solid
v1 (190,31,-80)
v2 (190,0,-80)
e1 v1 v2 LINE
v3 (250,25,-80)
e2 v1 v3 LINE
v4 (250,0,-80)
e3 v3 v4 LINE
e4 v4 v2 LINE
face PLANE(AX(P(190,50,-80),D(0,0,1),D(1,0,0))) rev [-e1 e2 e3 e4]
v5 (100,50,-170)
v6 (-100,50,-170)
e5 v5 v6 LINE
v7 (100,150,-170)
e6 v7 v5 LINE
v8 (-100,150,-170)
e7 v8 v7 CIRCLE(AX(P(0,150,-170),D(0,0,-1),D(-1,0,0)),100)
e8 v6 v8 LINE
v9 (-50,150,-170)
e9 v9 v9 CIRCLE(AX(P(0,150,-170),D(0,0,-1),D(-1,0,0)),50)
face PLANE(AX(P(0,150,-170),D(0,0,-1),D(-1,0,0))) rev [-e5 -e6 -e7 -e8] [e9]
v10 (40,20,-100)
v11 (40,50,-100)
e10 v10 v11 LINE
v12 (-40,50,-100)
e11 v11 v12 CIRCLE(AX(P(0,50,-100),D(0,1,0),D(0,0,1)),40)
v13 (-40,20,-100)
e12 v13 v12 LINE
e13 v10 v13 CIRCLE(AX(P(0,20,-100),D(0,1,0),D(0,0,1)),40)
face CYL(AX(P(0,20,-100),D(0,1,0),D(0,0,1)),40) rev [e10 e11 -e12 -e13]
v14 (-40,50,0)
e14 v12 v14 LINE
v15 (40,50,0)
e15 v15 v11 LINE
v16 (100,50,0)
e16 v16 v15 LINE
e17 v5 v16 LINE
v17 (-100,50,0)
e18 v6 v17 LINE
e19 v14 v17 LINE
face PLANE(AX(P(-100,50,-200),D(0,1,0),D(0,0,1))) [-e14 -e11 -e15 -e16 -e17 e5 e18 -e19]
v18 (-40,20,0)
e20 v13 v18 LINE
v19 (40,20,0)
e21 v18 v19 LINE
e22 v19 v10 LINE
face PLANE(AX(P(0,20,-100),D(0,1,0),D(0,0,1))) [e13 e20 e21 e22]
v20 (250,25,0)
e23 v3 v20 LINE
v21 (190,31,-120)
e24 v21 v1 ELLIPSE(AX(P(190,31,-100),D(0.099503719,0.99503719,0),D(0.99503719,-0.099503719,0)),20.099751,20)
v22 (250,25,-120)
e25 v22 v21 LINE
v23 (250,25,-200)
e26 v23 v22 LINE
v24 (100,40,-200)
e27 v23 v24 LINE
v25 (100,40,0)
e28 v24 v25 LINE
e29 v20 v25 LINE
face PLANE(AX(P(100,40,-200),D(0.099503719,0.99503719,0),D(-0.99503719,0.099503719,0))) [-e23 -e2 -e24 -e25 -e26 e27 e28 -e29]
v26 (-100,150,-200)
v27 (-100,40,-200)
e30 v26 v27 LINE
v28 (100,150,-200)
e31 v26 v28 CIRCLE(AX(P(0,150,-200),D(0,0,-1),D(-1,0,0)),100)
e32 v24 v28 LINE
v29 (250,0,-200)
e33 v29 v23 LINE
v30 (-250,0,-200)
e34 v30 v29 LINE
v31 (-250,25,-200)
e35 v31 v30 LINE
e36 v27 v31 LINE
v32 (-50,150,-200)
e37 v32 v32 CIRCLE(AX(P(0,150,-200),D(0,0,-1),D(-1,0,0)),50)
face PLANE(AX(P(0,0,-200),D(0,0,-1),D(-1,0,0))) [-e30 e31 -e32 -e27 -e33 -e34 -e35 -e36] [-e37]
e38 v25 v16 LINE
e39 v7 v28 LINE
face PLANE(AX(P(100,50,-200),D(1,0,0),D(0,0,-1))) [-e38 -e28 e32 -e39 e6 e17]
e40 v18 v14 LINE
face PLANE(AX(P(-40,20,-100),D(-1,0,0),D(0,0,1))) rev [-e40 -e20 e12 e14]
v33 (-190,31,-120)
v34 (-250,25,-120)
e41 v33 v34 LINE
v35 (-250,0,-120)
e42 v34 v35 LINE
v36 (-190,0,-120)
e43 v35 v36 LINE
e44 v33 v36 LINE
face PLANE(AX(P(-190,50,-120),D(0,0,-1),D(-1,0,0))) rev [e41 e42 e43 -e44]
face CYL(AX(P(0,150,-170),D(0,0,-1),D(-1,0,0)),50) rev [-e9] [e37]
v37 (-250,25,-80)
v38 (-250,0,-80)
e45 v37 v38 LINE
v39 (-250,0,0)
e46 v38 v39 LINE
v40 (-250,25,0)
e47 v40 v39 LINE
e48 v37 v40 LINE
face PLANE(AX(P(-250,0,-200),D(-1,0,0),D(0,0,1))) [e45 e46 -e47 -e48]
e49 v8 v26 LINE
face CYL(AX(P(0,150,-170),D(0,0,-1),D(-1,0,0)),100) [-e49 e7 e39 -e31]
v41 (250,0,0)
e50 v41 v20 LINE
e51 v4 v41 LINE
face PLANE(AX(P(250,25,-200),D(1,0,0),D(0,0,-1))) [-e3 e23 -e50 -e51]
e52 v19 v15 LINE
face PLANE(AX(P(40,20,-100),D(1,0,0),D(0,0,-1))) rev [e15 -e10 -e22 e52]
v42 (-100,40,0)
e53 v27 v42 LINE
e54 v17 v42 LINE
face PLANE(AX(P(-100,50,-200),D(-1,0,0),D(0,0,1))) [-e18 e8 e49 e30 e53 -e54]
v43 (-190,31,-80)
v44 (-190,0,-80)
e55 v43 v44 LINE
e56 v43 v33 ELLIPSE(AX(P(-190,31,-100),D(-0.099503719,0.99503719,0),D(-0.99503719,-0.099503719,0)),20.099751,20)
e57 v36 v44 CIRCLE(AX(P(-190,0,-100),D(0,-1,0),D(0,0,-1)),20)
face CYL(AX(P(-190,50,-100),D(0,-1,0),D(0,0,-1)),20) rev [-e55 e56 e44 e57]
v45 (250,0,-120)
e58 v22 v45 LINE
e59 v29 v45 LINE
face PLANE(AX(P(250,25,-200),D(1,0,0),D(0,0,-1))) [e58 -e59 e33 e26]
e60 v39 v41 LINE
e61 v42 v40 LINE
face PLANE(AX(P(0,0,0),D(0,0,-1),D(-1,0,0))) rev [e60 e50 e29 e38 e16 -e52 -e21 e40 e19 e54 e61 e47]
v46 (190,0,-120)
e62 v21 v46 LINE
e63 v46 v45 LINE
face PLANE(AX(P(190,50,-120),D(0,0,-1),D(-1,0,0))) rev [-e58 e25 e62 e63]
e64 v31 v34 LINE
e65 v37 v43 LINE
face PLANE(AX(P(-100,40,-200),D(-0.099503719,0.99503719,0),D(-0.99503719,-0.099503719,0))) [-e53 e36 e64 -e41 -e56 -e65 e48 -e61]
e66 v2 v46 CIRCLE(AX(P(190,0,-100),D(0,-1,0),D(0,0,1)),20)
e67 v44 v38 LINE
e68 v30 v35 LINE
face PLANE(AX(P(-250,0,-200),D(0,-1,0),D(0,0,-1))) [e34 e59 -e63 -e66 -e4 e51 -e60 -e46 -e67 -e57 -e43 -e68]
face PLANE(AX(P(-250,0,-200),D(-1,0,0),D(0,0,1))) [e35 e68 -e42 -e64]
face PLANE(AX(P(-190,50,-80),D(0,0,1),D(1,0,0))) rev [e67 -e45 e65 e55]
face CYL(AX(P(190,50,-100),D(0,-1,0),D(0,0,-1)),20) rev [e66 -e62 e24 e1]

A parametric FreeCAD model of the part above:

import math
import FreeCAD as App
import Part
import Sketcher

V = App.Vector
Q = App.Units.Quantity

doc = App.newDocument("Part")
params = doc.addObject("Spreadsheet::Sheet", "Params")
for row, (alias, value) in enumerate([
    ("sketch1_width", "500 mm"),
    ("sketch1_width2", "200 mm"),
    ("sketch1_height", "25 mm"),
    ("sketch1_height2", "10 mm"),
    ("pad1_length", "200 mm"),
    ("sketch2_radius", "40 mm"),
    ("sketch2_height", "100 mm"),
    ("pocket1_length", "30 mm"),
    ("sketch3_radius", "20 mm"),
    ("sketch3_width", "60 mm"),
    ("sketch4_diameter", "100 mm"),
    ("sketch4_radius", "100 mm"),
    ("sketch4_height", "100 mm"),
    ("pad2_length", "30 mm"),
], start=1):
    params.set(f"A{row}", alias)
    params.set(f"B{row}", "=" + value)
    params.setAlias(f"B{row}", alias)

body = doc.addObject("PartDesign::Body", "Body")

# Sketch on XY plane
sketch1 = doc.addObject("Sketcher::SketchObject", "Sketch")
body.addObject(sketch1)
sketch1.AttachmentSupport = (doc.XY_Plane, [""])
sketch1.MapMode = "FlatFace"
sketch1.addGeometry([
    Part.LineSegment(V(-250, 0, 0), V(250, 0, 0)),  # 0
    Part.LineSegment(V(250, 0, 0), V(250, 25, 0)),  # 1
    Part.LineSegment(V(250, 25, 0), V(100, 40, 0)),  # 2
    Part.LineSegment(V(100, 40, 0), V(100, 50, 0)),  # 3
    Part.LineSegment(V(100, 50, 0), V(-100, 50, 0)),  # 4
    Part.LineSegment(V(-100, 50, 0), V(-100, 40, 0)),  # 5
    Part.LineSegment(V(-100, 40, 0), V(-250, 25, 0)),  # 6
    Part.LineSegment(V(-250, 25, 0), V(-250, 0, 0)),  # 7
], False)
sketch1.addConstraint([
    Sketcher.Constraint("Coincident", 0, 2, 1, 1),
    Sketcher.Constraint("Coincident", 1, 2, 2, 1),
    Sketcher.Constraint("Coincident", 2, 2, 3, 1),
    Sketcher.Constraint("Coincident", 3, 2, 4, 1),
    Sketcher.Constraint("Coincident", 4, 2, 5, 1),
    Sketcher.Constraint("Coincident", 5, 2, 6, 1),
    Sketcher.Constraint("Coincident", 6, 2, 7, 1),
    Sketcher.Constraint("Coincident", 7, 2, 0, 1),
    Sketcher.Constraint("Horizontal", 0),
    Sketcher.Constraint("Vertical", 1),
    Sketcher.Constraint("Vertical", 3),
    Sketcher.Constraint("Horizontal", 4),
    Sketcher.Constraint("Vertical", 5),
    Sketcher.Constraint("Vertical", 7),
    Sketcher.Constraint("Symmetric", 0, 2, 7, 2, -1, 1),
    Sketcher.Constraint("Symmetric", 2, 2, 5, 2, -2),
    Sketcher.Constraint("Horizontal", 1, 2, 6, 2),
    Sketcher.Constraint("DistanceX", 0, 1, 0, 2, Q("500 mm")),
    Sketcher.Constraint("DistanceX", 4, 2, 4, 1, Q("200 mm")),
    Sketcher.Constraint("DistanceY", 1, 1, 1, 2, Q("25 mm")),
    Sketcher.Constraint("DistanceY", 3, 1, 3, 2, Q("10 mm")),
    Sketcher.Constraint("DistanceY", -1, 1, 2, 2, Q("40 mm")),
])
sketch1.setExpression("Constraints[17]", "Params.sketch1_width")
sketch1.setExpression("Constraints[18]", "Params.sketch1_width2")
sketch1.setExpression("Constraints[19]", "Params.sketch1_height")
sketch1.setExpression("Constraints[20]", "Params.sketch1_height2")
pad1 = doc.addObject("PartDesign::Pad", "Pad")
body.addObject(pad1)
pad1.Profile = sketch1
pad1.setExpression("Length", "Params.pad1_length")
pad1.Reversed = True

# Sketch on XZ plane
sketch2 = doc.addObject("Sketcher::SketchObject", "Sketch001")
body.addObject(sketch2)
sketch2.AttachmentSupport = (doc.XZ_Plane, [""])
sketch2.MapMode = "FlatFace"
sketch2.AttachmentOffset = App.Placement(V(0, 0, -50), App.Rotation())
sketch2.addGeometry([
    Part.LineSegment(V(-40, -100, 0), V(-40, 0, 0)),
    Part.LineSegment(V(-40, 0, 0), V(40, 0, 0)),
    Part.LineSegment(V(40, 0, 0), V(40, -100, 0)),
    Part.ArcOfCircle(Part.Circle(V(0, -100, 0), V(0, 0, 1), 40), math.radians(180), math.radians(360)),
], False)
sketch2.addConstraint([
    Sketcher.Constraint("Coincident", 0, 2, 1, 1),
    Sketcher.Constraint("Coincident", 1, 2, 2, 1),
    Sketcher.Constraint("Tangent", 2, 2, 3, 2),
    Sketcher.Constraint("Tangent", 3, 1, 0, 1),
    Sketcher.Constraint("Vertical", 0),
    Sketcher.Constraint("Horizontal", 1),
    Sketcher.Constraint("Vertical", 2),
    Sketcher.Constraint("Symmetric", 0, 2, 1, 2, -1, 1),
    Sketcher.Constraint("Radius", 3, Q("40 mm")),
    Sketcher.Constraint("DistanceY", 0, 1, 0, 2, Q("100 mm")),
])
sketch2.setExpression("Constraints[8]", "Params.sketch2_radius")
sketch2.setExpression("Constraints[9]", "Params.sketch2_height")
pocket1 = doc.addObject("PartDesign::Pocket", "Pocket")
body.addObject(pocket1)
pocket1.Profile = sketch2
pocket1.setExpression("Length", "Params.pocket1_length")
pocket1.Reversed = True

# Sketch on XZ plane
sketch3 = doc.addObject("Sketcher::SketchObject", "Sketch002")
body.addObject(sketch3)
sketch3.AttachmentSupport = (doc.XZ_Plane, [""])
sketch3.MapMode = "FlatFace"
sketch3.addGeometry([
    Part.LineSegment(V(-190, -80, 0), V(-250, -80, 0)),  # 0
    Part.LineSegment(V(-250, -80, 0), V(-250, -120, 0)),  # 1
    Part.LineSegment(V(-250, -120, 0), V(-190, -120, 0)),  # 2
    Part.ArcOfCircle(Part.Circle(V(-190, -100, 0), V(0, 0, 1), 20), math.radians(-90), math.radians(90)),  # 3
    Part.LineSegment(V(250, -120, 0), V(250, -80, 0)),  # 4
    Part.LineSegment(V(250, -80, 0), V(190, -80, 0)),  # 5
    Part.ArcOfCircle(Part.Circle(V(190, -100, 0), V(0, 0, 1), 20), math.radians(90), math.radians(270)),  # 6
    Part.LineSegment(V(190, -120, 0), V(250, -120, 0)),  # 7
], False)
sketch3.addConstraint([
    Sketcher.Constraint("Coincident", 0, 2, 1, 1),
    Sketcher.Constraint("Coincident", 1, 2, 2, 1),
    Sketcher.Constraint("Tangent", 2, 2, 3, 1),
    Sketcher.Constraint("Tangent", 3, 2, 0, 1),
    Sketcher.Constraint("Coincident", 4, 2, 5, 1),
    Sketcher.Constraint("Tangent", 5, 2, 6, 1),
    Sketcher.Constraint("Tangent", 6, 2, 7, 1),
    Sketcher.Constraint("Coincident", 7, 2, 4, 1),
    Sketcher.Constraint("Horizontal", 0),
    Sketcher.Constraint("Vertical", 1),
    Sketcher.Constraint("Horizontal", 2),
    Sketcher.Constraint("Vertical", 4),
    Sketcher.Constraint("Horizontal", 5),
    Sketcher.Constraint("Horizontal", 7),
    Sketcher.Constraint("Equal", 3, 6),
    Sketcher.Constraint("Symmetric", 3, 3, 6, 3, -2),
    Sketcher.Constraint("Equal", 2, 5),
    Sketcher.Constraint("Radius", 3, Q("20 mm")),
    Sketcher.Constraint("DistanceX", 0, 2, 0, 1, Q("60 mm")),
    Sketcher.Constraint("DistanceX", 3, 3, -1, 1, Q("190 mm")),
    Sketcher.Constraint("DistanceY", 3, 3, -1, 1, Q("100 mm")),
])
sketch3.setExpression("Constraints[17]", "Params.sketch3_radius")
sketch3.setExpression("Constraints[18]", "Params.sketch3_width")
pocket2 = doc.addObject("PartDesign::Pocket", "Pocket001")
body.addObject(pocket2)
pocket2.Profile = sketch3
pocket2.Type = "ThroughAll"

# Sketch on XY plane
sketch4 = doc.addObject("Sketcher::SketchObject", "Sketch003")
body.addObject(sketch4)
sketch4.AttachmentSupport = (doc.XY_Plane, [""])
sketch4.MapMode = "FlatFace"
sketch4.AttachmentOffset = App.Placement(V(0, 0, -200), App.Rotation())
sketch4.addGeometry([
    Part.LineSegment(V(100, 150, 0), V(100, 50, 0)),  # 0
    Part.LineSegment(V(100, 50, 0), V(-100, 50, 0)),  # 1
    Part.LineSegment(V(-100, 50, 0), V(-100, 150, 0)),  # 2
    Part.ArcOfCircle(Part.Circle(V(0, 150, 0), V(0, 0, 1), 100), math.radians(0), math.radians(180)),  # 3
    Part.Circle(V(0, 150, 0), V(0, 0, 1), 50),  # 4
], False)
sketch4.addConstraint([
    Sketcher.Constraint("Coincident", 0, 2, 1, 1),
    Sketcher.Constraint("Coincident", 1, 2, 2, 1),
    Sketcher.Constraint("Tangent", 2, 2, 3, 2),
    Sketcher.Constraint("Tangent", 3, 1, 0, 1),
    Sketcher.Constraint("Vertical", 0),
    Sketcher.Constraint("Horizontal", 1),
    Sketcher.Constraint("Vertical", 2),
    Sketcher.Constraint("Coincident", 4, 3, 3, 3),
    Sketcher.Constraint("PointOnObject", 3, 3, -2),
    Sketcher.Constraint("Diameter", 4, Q("100 mm")),
    Sketcher.Constraint("Radius", 3, Q("100 mm")),
    Sketcher.Constraint("DistanceY", 0, 2, 0, 1, Q("100 mm")),
    Sketcher.Constraint("DistanceY", -1, 1, 3, 3, Q("150 mm")),
])
sketch4.setExpression("Constraints[9]", "Params.sketch4_diameter")
sketch4.setExpression("Constraints[10]", "Params.sketch4_radius")
sketch4.setExpression("Constraints[11]", "Params.sketch4_height")
pad2 = doc.addObject("PartDesign::Pad", "Pad001")
body.addObject(pad2)
pad2.Profile = sketch4
pad2.setExpression("Length", "Params.pad2_length")

doc.recompute()
